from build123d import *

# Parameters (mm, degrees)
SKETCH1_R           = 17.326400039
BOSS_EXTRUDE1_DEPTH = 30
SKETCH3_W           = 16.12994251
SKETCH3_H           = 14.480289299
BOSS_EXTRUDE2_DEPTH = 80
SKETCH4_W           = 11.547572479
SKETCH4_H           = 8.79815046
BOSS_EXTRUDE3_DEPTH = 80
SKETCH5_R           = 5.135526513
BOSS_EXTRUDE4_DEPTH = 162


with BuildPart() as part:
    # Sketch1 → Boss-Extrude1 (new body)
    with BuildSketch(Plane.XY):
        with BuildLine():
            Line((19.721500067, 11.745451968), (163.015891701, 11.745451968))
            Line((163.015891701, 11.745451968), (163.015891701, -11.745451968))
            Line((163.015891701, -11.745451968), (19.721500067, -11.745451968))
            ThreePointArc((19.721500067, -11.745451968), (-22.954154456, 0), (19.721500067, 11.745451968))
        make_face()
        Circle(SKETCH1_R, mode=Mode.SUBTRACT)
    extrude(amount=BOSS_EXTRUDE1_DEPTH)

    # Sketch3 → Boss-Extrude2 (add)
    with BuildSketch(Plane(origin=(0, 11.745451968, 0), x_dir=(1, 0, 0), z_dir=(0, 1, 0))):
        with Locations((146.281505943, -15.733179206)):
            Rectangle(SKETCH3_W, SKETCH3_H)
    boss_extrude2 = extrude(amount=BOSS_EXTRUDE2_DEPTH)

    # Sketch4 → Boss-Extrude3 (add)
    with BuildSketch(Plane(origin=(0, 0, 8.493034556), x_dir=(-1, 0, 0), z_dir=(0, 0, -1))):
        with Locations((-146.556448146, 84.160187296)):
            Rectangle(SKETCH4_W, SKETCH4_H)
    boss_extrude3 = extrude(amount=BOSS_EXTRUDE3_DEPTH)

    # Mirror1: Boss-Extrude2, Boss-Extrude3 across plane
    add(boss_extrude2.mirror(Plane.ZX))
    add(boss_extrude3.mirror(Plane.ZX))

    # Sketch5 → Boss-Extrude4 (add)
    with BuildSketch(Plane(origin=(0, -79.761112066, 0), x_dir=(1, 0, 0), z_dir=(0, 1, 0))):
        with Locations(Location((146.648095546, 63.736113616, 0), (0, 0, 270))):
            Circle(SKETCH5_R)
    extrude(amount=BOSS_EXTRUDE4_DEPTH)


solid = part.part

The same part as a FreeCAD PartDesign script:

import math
import FreeCAD as App
import Part
import Sketcher

V = App.Vector
Q = App.Units.Quantity

doc = App.newDocument("Part")
params = doc.addObject("Spreadsheet::Sheet", "Params")
for row, (alias, value) in enumerate([
    ("pad1_length", "30 mm"),
    ("pad2_length", "80 mm"),
    ("pad3_length", "80 mm"),
    ("pad4_length", "162 mm"),
], start=1):
    params.set(f"A{row}", alias)
    params.set(f"B{row}", "=" + value)
    params.setAlias(f"B{row}", alias)

body = doc.addObject("PartDesign::Body", "Body")

sketch1 = doc.addObject("Sketcher::SketchObject", "Sketch")
body.addObject(sketch1)
sketch1.AttachmentSupport = (doc.XY_Plane, [""])
sketch1.MapMode = "FlatFace"
sketch1.addGeometry(Part.LineSegment(V(163, 12, 0), V(20, 12, 0)), False)
sketch1.addGeometry(Part.ArcOfCircle(Part.Circle(V(0, 0, 0), V(0, 0, 1), 23), math.radians(31), math.radians(329)), False)
sketch1.addGeometry(Part.LineSegment(V(20, -12, 0), V(163, -12, 0)), False)
sketch1.addGeometry(Part.LineSegment(V(163, -12, 0), V(163, 12, 0)), False)
sketch1.addGeometry(Part.Circle(V(0, 0, 0), V(0, 0, 1), 17), False)
sketch1.addConstraint(Sketcher.Constraint("Coincident", 0, 2, 1, 1))
sketch1.addConstraint(Sketcher.Constraint("Coincident", 1, 2, 2, 1))
sketch1.addConstraint(Sketcher.Constraint("Coincident", 2, 2, 3, 1))
sketch1.addConstraint(Sketcher.Constraint("Coincident", 3, 2, 0, 1))
sketch1.addConstraint(Sketcher.Constraint("Horizontal", 0))
sketch1.addConstraint(Sketcher.Constraint("Horizontal", 2))
sketch1.addConstraint(Sketcher.Constraint("Vertical", 3))
sketch1.addConstraint(Sketcher.Constraint("Coincident", 1, 3, -1, 1))
sketch1.addConstraint(Sketcher.Constraint("Coincident", 4, 3, -1, 1))
sketch1.addConstraint(Sketcher.Constraint("Vertical", 0, 2, 1, 2))
sketch1.addConstraint(Sketcher.Constraint("Diameter", 4, Q("34.6528 mm")))
sketch1.addConstraint(Sketcher.Constraint("Radius", 1, Q("22.954154 mm")))
sketch1.addConstraint(Sketcher.Constraint("DistanceX", 0, 2, 0, 1, Q("143.294392 mm")))
sketch1.addConstraint(Sketcher.Constraint("DistanceX", -1, 1, 0, 2, Q("19.7215 mm")))
pad1 = doc.addObject("PartDesign::Pad", "Pad")
body.addObject(pad1)
pad1.Profile = sketch1
pad1.setExpression("Length", "Params.pad1_length")

sketch2 = doc.addObject("Sketcher::SketchObject", "Sketch001")
body.addObject(sketch2)
sketch2.AttachmentSupport = (doc.XZ_Plane, [""])
sketch2.MapMode = "FlatFace"
sketch2.AttachmentOffset = App.Placement(V(0, 0, -11.745452), App.Rotation())
sketch2.addGeometry(Part.LineSegment(V(138, 8, 0), V(138, 23, 0)), False)
sketch2.addGeometry(Part.LineSegment(V(138, 23, 0), V(154, 23, 0)), False)
sketch2.addGeometry(Part.LineSegment(V(154, 23, 0), V(154, 8, 0)), False)
sketch2.addGeometry(Part.LineSegment(V(154, 8, 0), V(138, 8, 0)), False)
sketch2.addConstraint(Sketcher.Constraint("Coincident", 0, 2, 1, 1))
sketch2.addConstraint(Sketcher.Constraint("Coincident", 1, 2, 2, 1))
sketch2.addConstraint(Sketcher.Constraint("Coincident", 2, 2, 3, 1))
sketch2.addConstraint(Sketcher.Constraint("Coincident", 3, 2, 0, 1))
sketch2.addConstraint(Sketcher.Constraint("Vertical", 0))
sketch2.addConstraint(Sketcher.Constraint("Horizontal", 1))
sketch2.addConstraint(Sketcher.Constraint("Vertical", 2))
sketch2.addConstraint(Sketcher.Constraint("Horizontal", 3))
sketch2.addConstraint(Sketcher.Constraint("DistanceY", 0, 1, 0, 2, Q("14.480289 mm")))
sketch2.addConstraint(Sketcher.Constraint("DistanceX", 1, 1, 1, 2, Q("16.129943 mm")))
sketch2.addConstraint(Sketcher.Constraint("DistanceX", -1, 1, 0, 2, Q("138.216535 mm")))
sketch2.addConstraint(Sketcher.Constraint("DistanceY", -1, 1, 0, 2, Q("22.973324 mm")))
pad2 = doc.addObject("PartDesign::Pad", "Pad001")
body.addObject(pad2)
pad2.Profile = sketch2
pad2.setExpression("Length", "Params.pad2_length")
pad2.Reversed = True

sketch3 = doc.addObject("Sketcher::SketchObject", "Sketch002")
body.addObject(sketch3)
sketch3.AttachmentSupport = (doc.XY_Plane, [""])
sketch3.MapMode = "FlatFace"
sketch3.AttachmentOffset = App.Placement(V(0, 0, 8.493035), App.Rotation())
sketch3.addGeometry(Part.LineSegment(V(152, 89, 0), V(152, 80, 0)), False)
sketch3.addGeometry(Part.LineSegment(V(152, 80, 0), V(141, 80, 0)), False)
sketch3.addGeometry(Part.LineSegment(V(141, 80, 0), V(141, 89, 0)), False)
sketch3.addGeometry(Part.LineSegment(V(141, 89, 0), V(152, 89, 0)), False)
sketch3.addConstraint(Sketcher.Constraint("Coincident", 0, 2, 1, 1))
sketch3.addConstraint(Sketcher.Constraint("Coincident", 1, 2, 2, 1))
sketch3.addConstraint(Sketcher.Constraint("Coincident", 2, 2, 3, 1))
sketch3.addConstraint(Sketcher.Constraint("Coincident", 3, 2, 0, 1))
sketch3.addConstraint(Sketcher.Constraint("Vertical", 0))
sketch3.addConstraint(Sketcher.Constraint("Horizontal", 1))
sketch3.addConstraint(Sketcher.Constraint("Vertical", 2))
sketch3.addConstraint(Sketcher.Constraint("Horizontal", 3))
sketch3.addConstraint(Sketcher.Constraint("DistanceY", 0, 2, 0, 1, Q("8.79815 mm")))
sketch3.addConstraint(Sketcher.Constraint("DistanceX", 1, 2, 1, 1, Q("11.547572 mm")))
sketch3.addConstraint(Sketcher.Constraint("DistanceX", -1, 1, 1, 2, Q("140.782662 mm")))
sketch3.addConstraint(Sketcher.Constraint("DistanceY", -1, 1, 0, 2, Q("79.761112 mm")))
pad3 = doc.addObject("PartDesign::Pad", "Pad002")
body.addObject(pad3)
pad3.Profile = sketch3
pad3.setExpression("Length", "Params.pad3_length")
pad3.Reversed = True
doc.recompute()

mirrored = doc.addObject("PartDesign::Mirrored", "Mirrored")
body.addObject(mirrored)
mirrored.Originals = [pad2, pad3]
mirrored.MirrorPlane = (doc.XZ_Plane, [""])
body.Tip = mirrored

sketch4 = doc.addObject("Sketcher::SketchObject", "Sketch003")
body.addObject(sketch4)
sketch4.AttachmentSupport = (doc.XZ_Plane, [""])
sketch4.MapMode = "FlatFace"
sketch4.AttachmentOffset = App.Placement(V(0, 0, 79.761112), App.Rotation())
sketch4.addGeometry(Part.Circle(V(147, -64, 0), V(0, 0, 1), 5), False)
sketch4.addConstraint(Sketcher.Constraint("Diameter", 0, Q("10.271053 mm")))
sketch4.addConstraint(Sketcher.Constraint("DistanceX", -1, 1, 0, 3, Q("146.648096 mm")))
sketch4.addConstraint(Sketcher.Constraint("DistanceY", 0, 3, -1, 1, Q("63.736114 mm")))
pad4 = doc.addObject("PartDesign::Pad", "Pad003")
body.addObject(pad4)
pad4.Profile = sketch4
pad4.setExpression("Length", "Params.pad4_length")
pad4.Reversed = True

doc.recompute()
